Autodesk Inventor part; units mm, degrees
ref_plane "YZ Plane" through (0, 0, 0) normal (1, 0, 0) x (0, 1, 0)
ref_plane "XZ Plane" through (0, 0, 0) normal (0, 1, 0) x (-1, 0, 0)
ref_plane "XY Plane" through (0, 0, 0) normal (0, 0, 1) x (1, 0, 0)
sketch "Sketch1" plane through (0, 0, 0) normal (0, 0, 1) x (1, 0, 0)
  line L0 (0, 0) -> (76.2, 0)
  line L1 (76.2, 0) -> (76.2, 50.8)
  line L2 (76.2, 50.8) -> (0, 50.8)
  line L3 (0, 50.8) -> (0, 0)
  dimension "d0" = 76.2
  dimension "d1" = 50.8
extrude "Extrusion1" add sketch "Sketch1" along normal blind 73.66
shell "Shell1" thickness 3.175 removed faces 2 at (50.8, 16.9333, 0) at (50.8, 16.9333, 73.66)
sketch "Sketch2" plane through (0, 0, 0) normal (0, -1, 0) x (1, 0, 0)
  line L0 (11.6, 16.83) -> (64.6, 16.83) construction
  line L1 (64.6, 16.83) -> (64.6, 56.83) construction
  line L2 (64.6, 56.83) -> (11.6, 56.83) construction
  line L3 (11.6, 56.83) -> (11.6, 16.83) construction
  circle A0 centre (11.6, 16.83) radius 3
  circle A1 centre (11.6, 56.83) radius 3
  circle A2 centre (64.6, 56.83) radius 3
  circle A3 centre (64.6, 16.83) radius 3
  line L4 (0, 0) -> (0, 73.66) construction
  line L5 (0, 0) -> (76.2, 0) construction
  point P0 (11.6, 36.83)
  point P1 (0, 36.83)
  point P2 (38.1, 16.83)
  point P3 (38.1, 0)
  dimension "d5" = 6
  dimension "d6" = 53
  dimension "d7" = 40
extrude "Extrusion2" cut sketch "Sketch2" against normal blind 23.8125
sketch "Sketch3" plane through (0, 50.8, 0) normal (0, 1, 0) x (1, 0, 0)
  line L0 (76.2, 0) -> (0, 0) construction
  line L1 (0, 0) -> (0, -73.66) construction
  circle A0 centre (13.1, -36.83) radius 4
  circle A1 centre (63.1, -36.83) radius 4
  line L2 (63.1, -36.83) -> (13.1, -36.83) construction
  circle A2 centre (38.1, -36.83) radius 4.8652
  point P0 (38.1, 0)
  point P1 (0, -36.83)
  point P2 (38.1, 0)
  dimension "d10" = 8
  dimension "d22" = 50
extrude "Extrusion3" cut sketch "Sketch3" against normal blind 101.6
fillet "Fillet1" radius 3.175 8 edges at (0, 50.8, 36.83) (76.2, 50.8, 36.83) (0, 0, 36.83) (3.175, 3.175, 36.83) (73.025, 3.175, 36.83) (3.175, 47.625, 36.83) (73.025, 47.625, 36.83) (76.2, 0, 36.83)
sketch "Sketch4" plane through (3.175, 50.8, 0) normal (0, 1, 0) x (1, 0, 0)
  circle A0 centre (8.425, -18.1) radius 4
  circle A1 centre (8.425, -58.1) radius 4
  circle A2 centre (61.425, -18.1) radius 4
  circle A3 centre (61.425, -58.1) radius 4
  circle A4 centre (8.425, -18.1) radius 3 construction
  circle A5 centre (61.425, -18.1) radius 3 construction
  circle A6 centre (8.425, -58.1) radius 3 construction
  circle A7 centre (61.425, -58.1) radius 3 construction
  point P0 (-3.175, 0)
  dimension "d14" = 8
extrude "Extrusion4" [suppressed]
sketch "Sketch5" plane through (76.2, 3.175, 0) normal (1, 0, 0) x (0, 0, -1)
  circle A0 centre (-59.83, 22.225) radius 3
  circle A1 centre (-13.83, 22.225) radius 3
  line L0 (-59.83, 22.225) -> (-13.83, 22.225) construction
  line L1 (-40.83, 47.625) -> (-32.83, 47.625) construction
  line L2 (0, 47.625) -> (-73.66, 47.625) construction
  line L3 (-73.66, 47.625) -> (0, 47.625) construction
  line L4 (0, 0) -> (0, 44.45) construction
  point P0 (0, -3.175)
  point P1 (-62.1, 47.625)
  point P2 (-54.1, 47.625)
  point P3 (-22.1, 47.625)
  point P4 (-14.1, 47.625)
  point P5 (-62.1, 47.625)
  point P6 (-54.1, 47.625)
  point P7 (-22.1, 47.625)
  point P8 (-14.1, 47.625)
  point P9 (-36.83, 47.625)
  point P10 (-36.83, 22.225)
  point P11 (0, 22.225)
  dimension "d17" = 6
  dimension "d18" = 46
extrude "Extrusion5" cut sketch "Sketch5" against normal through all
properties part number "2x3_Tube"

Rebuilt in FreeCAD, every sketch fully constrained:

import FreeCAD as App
import Part
import Sketcher

V = App.Vector
Q = App.Units.Quantity


def edges_at(feature, points):
    """Names of the edges that pass closest to the given points."""
    edges = feature.Shape.Edges
    near = lambda p: min(range(len(edges)), key=lambda i: edges[i].distToShape(Part.Vertex(*p))[0])
    return sorted({f"Edge{near(p) + 1}" for p in points})


def faces_at(feature, points):
    """Names of the faces that lie closest to the given points."""
    faces = feature.Shape.Faces
    near = lambda p: min(range(len(faces)), key=lambda i: faces[i].distToShape(Part.Vertex(*p))[0])
    return sorted({f"Face{near(p) + 1}" for p in points})

doc = App.newDocument("Part")
body = doc.addObject("PartDesign::Body", "Body")

# Sketch on XY plane
sketch1 = body.newObject("Sketcher::SketchObject", "Sketch")
sketch1.AttachmentSupport = (doc.getObject("XY_Plane"), [""])
sketch1.MapMode = "FlatFace"
sketch1.addGeometry([
    Part.LineSegment(V(0, 50.8, 0), V(0, 0, 0)),
    Part.LineSegment(V(0, 0, 0), V(76.2, 0, 0)),
    Part.LineSegment(V(76.2, 0, 0), V(76.2, 50.8, 0)),
    Part.LineSegment(V(76.2, 50.8, 0), V(0, 50.8, 0)),
], False)
sketch1.addConstraint([
    Sketcher.Constraint("Coincident", 0, 2, 1, 1),
    Sketcher.Constraint("Coincident", 1, 2, 2, 1),
    Sketcher.Constraint("Coincident", 2, 2, 3, 1),
    Sketcher.Constraint("Coincident", 3, 2, 0, 1),
    Sketcher.Constraint("Vertical", 0),
    Sketcher.Constraint("Horizontal", 1),
    Sketcher.Constraint("Vertical", 2),
    Sketcher.Constraint("Horizontal", 3),
    Sketcher.Constraint("Coincident", 0, 2, -1, 1),
    Sketcher.Constraint("DistanceX", 1, 1, 1, 2, Q("3 in")),
    Sketcher.Constraint("DistanceY", 0, 2, 0, 1, Q("2 in")),
])
pad1 = body.newObject("PartDesign::Pad", "Pad")
pad1.Profile = sketch1
pad1.Length = Q("2.9 in")
doc.recompute()

thickness = body.newObject("PartDesign::Thickness", "Thickness")
thickness.Base = (pad1, faces_at(pad1, [(50.8, 16.933, 0), (50.8, 16.933, 73.66)]))
thickness.Value = Q("0.125 in")
thickness.Reversed = True
thickness.Join = "Intersection"

# Sketch on XZ plane
sketch2 = body.newObject("Sketcher::SketchObject", "Sketch001")
sketch2.AttachmentSupport = (doc.getObject("XZ_Plane"), [""])
sketch2.MapMode = "FlatFace"
sketch2.addGeometry([
    Part.Circle(V(11.6, 16.83, 0), V(0, 0, 1), 3),
    Part.Circle(V(11.6, 56.83, 0), V(0, 0, 1), 3),
    Part.Circle(V(64.6, 56.83, 0), V(0, 0, 1), 3),
    Part.Circle(V(64.6, 16.83, 0), V(0, 0, 1), 3),
], False)
sketch2.addConstraint([
    Sketcher.Constraint("Equal", 0, 1),
    Sketcher.Constraint("Equal", 1, 2),
    Sketcher.Constraint("Equal", 2, 3),
    Sketcher.Constraint("Horizontal", 1, 3, 2, 3),
    Sketcher.Constraint("Horizontal", 0, 3, 3, 3),
    Sketcher.Constraint("Vertical", 0, 3, 1, 3),
    Sketcher.Constraint("Vertical", 2, 3, 3, 3),
    Sketcher.Constraint("Diameter", 0, Q("6 mm")),
    Sketcher.Constraint("DistanceY", 0, 3, 1, 3, Q("1.5748 in")),
    Sketcher.Constraint("DistanceX", 1, 3, 2, 3, Q("53 mm")),
    Sketcher.Constraint("DistanceX", -1, 1, 0, 3, Q("0.4567 in")),
    Sketcher.Constraint("DistanceY", -1, 1, 0, 3, Q("0.6626 in")),
])
pocket1 = body.newObject("PartDesign::Pocket", "Pocket")
pocket1.Profile = sketch2
pocket1.Length = Q("0.9375 in")

# Sketch on XZ plane
sketch3 = body.newObject("Sketcher::SketchObject", "Sketch002")
sketch3.AttachmentSupport = (doc.getObject("XZ_Plane"), [""])
sketch3.MapMode = "FlatFace"
sketch3.AttachmentOffset = App.Placement(V(0, 0, -2 * 25.4), App.Rotation())
sketch3.addGeometry([
    Part.Circle(V(13.1, 36.83, 0), V(0, 0, 1), 4),
    Part.Circle(V(63.1, 36.83, 0), V(0, 0, 1), 4),
    Part.Circle(V(38.1, 36.83, 0), V(0, 0, 1), 4.8652),
], False)
sketch3.addConstraint([
    Sketcher.Constraint("Equal", 0, 1),
    Sketcher.Constraint("Horizontal", 0, 3, 1, 3),
    Sketcher.Constraint("Horizontal", 1, 3, 2, 3),
    Sketcher.Constraint("Diameter", 0, Q("8 mm")),
    Sketcher.Constraint("DistanceX", -1, 1, 2, 3, Q("1.5 in")),
    Sketcher.Constraint("DistanceX", 0, 3, 1, 3, Q("1.9685 in")),
    Sketcher.Constraint("Diameter", 2, Q("9.7304 mm")),
    Sketcher.Constraint("DistanceY", -1, 1, 0, 3, Q("1.45 in")),
    Sketcher.Constraint("DistanceX", -1, 1, 0, 3, Q("13.1 mm")),
])
pocket2 = body.newObject("PartDesign::Pocket", "Pocket001")
pocket2.Profile = sketch3
pocket2.Length = Q("4 in")
pocket2.Reversed = True
doc.recompute()

fillet = body.newObject("PartDesign::Fillet", "Fillet")
fillet.Base = (pocket2, edges_at(pocket2, [
    (0, 50.8, 36.83),
    (76.2, 50.8, 36.83),
    (0, 0, 36.83),
    (3.175, 3.175, 36.83),
    (73.025, 3.175, 36.83),
    (3.175, 47.625, 36.83),
    (73.025, 47.625, 36.83),
    (76.2, 0, 36.83),
]))
fillet.Radius = Q("0.125 in")

# Sketch on YZ plane
sketch4 = body.newObject("Sketcher::SketchObject", "Sketch003")
sketch4.AttachmentSupport = (doc.getObject("YZ_Plane"), [""])
sketch4.MapMode = "FlatFace"
sketch4.AttachmentOffset = App.Placement(V(0, 0, 3 * 25.4), App.Rotation())
sketch4.addGeometry([
    Part.Circle(V(25.4, 59.83, 0), V(0, 0, 1), 3),
    Part.Circle(V(25.4, 13.83, 0), V(0, 0, 1), 3),
], False)
sketch4.addConstraint([
    Sketcher.Constraint("Equal", 0, 1),
    Sketcher.Constraint("Vertical", 0, 3, 1, 3),
    Sketcher.Constraint("Diameter", 0, Q("6 mm")),
    Sketcher.Constraint("DistanceX", -1, 1, 0, 3, Q("1 in")),
    Sketcher.Constraint("DistanceY", 1, 3, 0, 3, Q("46 mm")),
    Sketcher.Constraint("DistanceY", -1, 1, 0, 3, Q("2.3555 in")),
])
pocket3 = body.newObject("PartDesign::Pocket", "Pocket002")
pocket3.Profile = sketch4
pocket3.Type = "ThroughAll"

doc.recompute()
